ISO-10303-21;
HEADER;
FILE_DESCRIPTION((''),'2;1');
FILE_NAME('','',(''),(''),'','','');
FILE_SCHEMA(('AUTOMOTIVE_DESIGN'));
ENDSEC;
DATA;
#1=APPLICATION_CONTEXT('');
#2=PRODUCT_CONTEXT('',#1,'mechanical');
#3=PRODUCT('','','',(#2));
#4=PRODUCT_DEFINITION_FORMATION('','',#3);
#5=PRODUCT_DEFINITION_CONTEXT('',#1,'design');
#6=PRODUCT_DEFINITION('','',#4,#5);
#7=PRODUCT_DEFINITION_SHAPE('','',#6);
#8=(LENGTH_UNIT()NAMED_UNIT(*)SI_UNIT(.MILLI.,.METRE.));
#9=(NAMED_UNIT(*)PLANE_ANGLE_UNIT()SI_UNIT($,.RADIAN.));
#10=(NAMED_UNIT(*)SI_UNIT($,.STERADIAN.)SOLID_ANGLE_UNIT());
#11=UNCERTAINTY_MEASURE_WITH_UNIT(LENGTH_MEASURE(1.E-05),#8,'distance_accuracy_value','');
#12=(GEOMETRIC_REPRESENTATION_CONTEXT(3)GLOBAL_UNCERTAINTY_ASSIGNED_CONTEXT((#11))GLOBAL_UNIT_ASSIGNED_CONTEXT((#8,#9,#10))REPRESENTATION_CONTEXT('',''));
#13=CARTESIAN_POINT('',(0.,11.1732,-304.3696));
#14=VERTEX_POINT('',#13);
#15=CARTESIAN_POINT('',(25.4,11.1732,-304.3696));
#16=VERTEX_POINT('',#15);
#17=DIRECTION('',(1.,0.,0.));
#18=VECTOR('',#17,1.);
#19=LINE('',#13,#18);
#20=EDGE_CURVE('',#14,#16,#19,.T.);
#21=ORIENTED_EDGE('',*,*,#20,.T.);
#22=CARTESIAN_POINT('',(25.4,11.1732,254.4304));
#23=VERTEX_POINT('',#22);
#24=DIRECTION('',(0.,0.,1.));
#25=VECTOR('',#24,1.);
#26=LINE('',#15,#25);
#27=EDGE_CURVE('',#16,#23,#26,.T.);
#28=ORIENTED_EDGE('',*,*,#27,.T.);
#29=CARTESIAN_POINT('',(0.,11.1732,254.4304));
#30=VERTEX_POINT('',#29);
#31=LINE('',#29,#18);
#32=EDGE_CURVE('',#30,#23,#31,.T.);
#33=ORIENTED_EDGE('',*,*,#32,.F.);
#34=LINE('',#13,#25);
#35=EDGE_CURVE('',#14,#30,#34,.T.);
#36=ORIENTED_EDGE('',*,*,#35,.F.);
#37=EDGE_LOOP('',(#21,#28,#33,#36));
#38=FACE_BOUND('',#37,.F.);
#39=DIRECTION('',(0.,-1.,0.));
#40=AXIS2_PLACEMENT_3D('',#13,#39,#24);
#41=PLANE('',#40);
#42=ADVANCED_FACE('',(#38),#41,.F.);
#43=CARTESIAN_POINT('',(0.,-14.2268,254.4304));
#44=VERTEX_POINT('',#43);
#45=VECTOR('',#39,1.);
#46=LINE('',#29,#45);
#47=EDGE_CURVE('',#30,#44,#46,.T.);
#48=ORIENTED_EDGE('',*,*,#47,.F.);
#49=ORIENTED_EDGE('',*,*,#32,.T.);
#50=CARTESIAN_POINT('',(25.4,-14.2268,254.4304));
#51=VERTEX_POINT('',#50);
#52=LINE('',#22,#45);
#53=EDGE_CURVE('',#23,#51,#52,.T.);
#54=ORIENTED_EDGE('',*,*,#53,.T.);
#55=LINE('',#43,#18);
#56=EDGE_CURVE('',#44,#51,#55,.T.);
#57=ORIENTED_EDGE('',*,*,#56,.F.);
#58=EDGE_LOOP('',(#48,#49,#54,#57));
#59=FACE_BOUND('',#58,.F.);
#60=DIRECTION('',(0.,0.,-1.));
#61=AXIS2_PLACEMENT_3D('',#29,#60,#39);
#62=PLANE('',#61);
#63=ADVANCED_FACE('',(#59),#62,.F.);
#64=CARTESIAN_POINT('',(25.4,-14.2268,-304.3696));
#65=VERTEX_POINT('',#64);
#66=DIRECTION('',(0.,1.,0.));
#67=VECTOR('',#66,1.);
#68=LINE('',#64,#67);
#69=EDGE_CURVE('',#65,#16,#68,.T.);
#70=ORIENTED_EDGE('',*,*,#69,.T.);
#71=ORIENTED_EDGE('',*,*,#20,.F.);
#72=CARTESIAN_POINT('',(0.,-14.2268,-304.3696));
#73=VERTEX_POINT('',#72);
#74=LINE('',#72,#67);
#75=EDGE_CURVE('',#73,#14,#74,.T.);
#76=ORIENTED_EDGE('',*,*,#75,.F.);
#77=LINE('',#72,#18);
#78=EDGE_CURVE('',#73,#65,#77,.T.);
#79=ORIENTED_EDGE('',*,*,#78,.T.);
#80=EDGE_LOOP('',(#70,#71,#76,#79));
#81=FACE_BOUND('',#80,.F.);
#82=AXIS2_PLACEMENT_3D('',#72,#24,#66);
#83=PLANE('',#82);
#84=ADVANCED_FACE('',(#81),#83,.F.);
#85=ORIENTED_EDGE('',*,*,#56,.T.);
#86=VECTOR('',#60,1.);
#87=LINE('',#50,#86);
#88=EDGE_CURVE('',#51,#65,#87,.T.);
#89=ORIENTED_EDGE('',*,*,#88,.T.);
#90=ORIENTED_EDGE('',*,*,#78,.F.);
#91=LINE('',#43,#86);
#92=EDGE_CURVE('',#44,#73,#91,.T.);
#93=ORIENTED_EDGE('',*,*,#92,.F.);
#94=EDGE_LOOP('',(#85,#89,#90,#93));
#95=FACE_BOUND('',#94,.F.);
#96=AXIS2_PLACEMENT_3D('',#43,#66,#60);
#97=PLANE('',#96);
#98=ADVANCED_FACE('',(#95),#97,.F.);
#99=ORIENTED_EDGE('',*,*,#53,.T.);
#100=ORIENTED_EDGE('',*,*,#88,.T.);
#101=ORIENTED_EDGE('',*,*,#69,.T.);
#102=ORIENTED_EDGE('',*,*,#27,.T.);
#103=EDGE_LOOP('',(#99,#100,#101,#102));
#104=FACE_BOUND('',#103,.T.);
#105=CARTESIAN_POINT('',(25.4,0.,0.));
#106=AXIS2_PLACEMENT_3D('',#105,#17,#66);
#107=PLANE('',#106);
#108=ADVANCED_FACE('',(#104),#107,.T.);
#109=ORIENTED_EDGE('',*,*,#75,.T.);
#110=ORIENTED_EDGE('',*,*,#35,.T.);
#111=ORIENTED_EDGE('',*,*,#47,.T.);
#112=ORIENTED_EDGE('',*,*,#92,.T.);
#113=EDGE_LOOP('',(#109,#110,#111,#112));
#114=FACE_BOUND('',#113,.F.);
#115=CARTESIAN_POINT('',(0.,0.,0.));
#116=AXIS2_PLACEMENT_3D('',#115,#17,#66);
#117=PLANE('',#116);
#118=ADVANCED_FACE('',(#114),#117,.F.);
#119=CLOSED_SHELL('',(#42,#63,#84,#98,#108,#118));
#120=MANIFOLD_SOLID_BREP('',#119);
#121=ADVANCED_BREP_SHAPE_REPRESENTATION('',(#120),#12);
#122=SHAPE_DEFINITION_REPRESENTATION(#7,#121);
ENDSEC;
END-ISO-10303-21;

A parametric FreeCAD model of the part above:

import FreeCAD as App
import Part
import Sketcher

V = App.Vector
Q = App.Units.Quantity


def add_polygon(sketch, points):
    """Adds a closed chain of lines whose ends are joined by coincident constraints."""
    first, n = sketch.GeometryCount, len(points)
    for a, b in zip(points, points[1:] + points[:1]):
        sketch.addGeometry(Part.LineSegment(App.Vector(*a, 0), App.Vector(*b, 0)), False)
    for i in range(n):
        sketch.addConstraint(Sketcher.Constraint("Coincident", first + i, 2, first + (i + 1) % n, 1))

doc = App.newDocument("Part")
body = doc.addObject("PartDesign::Body", "Body")

sketch1 = body.newObject("Sketcher::SketchObject", "Sketch")
sketch1.AttachmentSupport = (doc.getObject("YZ_Plane"), [""])
sketch1.MapMode = "FlatFace"
add_polygon(sketch1, [(11, -304), (11, 254), (-14, 254), (-14, -304)])
sketch1.addConstraint(Sketcher.Constraint("Vertical", 0))
sketch1.addConstraint(Sketcher.Constraint("Horizontal", 1))
sketch1.addConstraint(Sketcher.Constraint("Vertical", 2))
sketch1.addConstraint(Sketcher.Constraint("Horizontal", 3))
sketch1.addConstraint(Sketcher.Constraint("DistanceX", 1, 2, 1, 1, Q("1 in")))
sketch1.addConstraint(Sketcher.Constraint("DistanceY", 0, 1, 0, 2, Q("22 in")))
sketch1.addConstraint(Sketcher.Constraint("DistanceX", -1, 1, 0, 2, Q("0.4399 in")))
sketch1.addConstraint(Sketcher.Constraint("DistanceY", -1, 1, 0, 2, Q("254.4304 mm")))
pad1 = body.newObject("PartDesign::Pad", "Pad")
pad1.Profile = sketch1
pad1.Length = Q("1 in")

doc.recompute()
